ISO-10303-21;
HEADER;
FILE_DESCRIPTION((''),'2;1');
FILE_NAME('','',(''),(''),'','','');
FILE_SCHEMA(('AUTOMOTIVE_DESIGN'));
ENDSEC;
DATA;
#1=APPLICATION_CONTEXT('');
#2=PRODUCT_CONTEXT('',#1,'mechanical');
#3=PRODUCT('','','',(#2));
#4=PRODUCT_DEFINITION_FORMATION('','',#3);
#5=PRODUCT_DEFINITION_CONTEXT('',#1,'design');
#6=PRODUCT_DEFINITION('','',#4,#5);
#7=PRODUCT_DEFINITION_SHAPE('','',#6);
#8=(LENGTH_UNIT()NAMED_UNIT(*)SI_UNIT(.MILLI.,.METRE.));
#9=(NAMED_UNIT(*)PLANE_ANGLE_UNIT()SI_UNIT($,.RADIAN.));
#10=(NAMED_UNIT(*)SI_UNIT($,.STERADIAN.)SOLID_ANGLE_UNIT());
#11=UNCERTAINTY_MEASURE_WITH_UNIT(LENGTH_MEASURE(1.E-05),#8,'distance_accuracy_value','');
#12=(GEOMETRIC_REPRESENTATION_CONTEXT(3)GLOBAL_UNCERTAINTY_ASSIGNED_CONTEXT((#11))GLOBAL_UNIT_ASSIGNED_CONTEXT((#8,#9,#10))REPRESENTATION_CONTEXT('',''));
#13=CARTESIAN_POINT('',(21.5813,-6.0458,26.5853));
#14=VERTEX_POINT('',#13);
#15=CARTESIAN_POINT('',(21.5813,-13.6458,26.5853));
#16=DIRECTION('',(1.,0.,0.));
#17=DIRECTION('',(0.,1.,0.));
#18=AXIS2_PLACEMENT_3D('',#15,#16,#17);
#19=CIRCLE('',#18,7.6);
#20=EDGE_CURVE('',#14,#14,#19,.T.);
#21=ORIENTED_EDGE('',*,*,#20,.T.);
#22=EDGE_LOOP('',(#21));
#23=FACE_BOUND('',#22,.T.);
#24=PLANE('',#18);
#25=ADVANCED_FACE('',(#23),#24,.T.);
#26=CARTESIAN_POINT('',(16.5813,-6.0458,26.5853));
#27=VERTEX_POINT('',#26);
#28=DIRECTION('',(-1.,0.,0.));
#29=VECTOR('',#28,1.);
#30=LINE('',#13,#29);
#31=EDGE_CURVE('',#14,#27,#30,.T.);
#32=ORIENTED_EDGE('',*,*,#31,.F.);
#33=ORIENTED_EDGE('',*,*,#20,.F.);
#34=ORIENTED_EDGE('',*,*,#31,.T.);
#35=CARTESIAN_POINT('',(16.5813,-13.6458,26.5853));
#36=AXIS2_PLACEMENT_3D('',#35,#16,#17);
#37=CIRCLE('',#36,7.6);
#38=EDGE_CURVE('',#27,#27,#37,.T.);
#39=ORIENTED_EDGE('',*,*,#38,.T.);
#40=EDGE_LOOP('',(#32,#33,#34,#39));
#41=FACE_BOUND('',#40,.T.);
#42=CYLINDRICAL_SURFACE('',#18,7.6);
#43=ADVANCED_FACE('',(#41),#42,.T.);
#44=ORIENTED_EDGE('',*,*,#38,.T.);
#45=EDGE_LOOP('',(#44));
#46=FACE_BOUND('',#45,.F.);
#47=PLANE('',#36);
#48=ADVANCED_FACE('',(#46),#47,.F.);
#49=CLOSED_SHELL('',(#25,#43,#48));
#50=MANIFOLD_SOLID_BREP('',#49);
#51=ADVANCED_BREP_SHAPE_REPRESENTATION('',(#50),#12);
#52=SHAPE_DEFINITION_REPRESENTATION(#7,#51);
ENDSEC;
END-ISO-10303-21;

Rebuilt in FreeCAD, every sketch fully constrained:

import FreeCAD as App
import Part
import Sketcher
from FreeCAD import Vector
Q = App.Units.Quantity

doc = App.newDocument("Part")
body = doc.addObject("PartDesign::Body", "Body")

# Sketch on YZ plane
sketch1 = body.newObject("Sketcher::SketchObject", "Sketch")
sketch1.AttachmentSupport = (doc.getObject("YZ_Plane"), [""])
sketch1.MapMode = "FlatFace"
sketch1.AttachmentOffset = App.Placement(Vector(0, 0, 21.5813), App.Rotation())
sketch1.addGeometry(Part.Circle(Vector(-14, 27, 0), Vector(0, 0, 1), 8), False)
sketch1.addConstraint([
    Sketcher.Constraint("Diameter", 0, Q("15.2 mm")),
    Sketcher.Constraint("DistanceX", 0, 3, -1, 1, Q("13.6458 mm")),
    Sketcher.Constraint("DistanceY", -1, 1, 0, 3, Q("26.5853 mm")),
])
pad1 = body.newObject("PartDesign::Pad", "Pad")
pad1.Profile = sketch1
pad1.Length = 5
pad1.Reversed = True

doc.recompute()
